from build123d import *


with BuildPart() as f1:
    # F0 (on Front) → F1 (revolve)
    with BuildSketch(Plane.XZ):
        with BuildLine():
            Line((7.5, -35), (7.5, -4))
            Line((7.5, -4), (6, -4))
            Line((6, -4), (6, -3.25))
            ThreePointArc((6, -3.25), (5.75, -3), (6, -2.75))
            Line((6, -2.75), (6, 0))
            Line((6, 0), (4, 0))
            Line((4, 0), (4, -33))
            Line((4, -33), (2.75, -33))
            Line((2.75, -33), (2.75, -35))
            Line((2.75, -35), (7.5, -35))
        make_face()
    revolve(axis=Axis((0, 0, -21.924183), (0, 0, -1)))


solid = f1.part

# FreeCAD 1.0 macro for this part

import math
import FreeCAD as App
import Part
import Sketcher
from FreeCAD import Vector
Q = App.Units.Quantity

doc = App.newDocument("Part")
params = doc.addObject("Spreadsheet::Sheet", "Params")
for row, (alias, value) in enumerate([
    ("sketch1_width", "2 mm"),
    ("sketch1_height", "31 mm"),
    ("sketch1_height2", "33 mm"),
    ("sketch1_radius", "0.25 mm"),
    ("sketch1_width2", "1.5 mm"),
    ("revolution_angle", "360 deg"),
], start=1):
    params.set(f"A{row}", alias)
    params.set(f"B{row}", "=" + value)
    params.setAlias(f"B{row}", alias)

body = doc.addObject("PartDesign::Body", "Body")

# Sketch on XZ plane
sketch1 = body.newObject("Sketcher::SketchObject", "Sketch")
sketch1.AttachmentSupport = (doc.getObject("XZ_Plane"), [""])
sketch1.MapMode = "FlatFace"
sketch1.addGeometry(Part.LineSegment(Vector(7.5, -35, 0), Vector(7.5, -4, 0)), False)
sketch1.addGeometry(Part.LineSegment(Vector(7.5, -4, 0), Vector(6, -4, 0)), False)
sketch1.addGeometry(Part.LineSegment(Vector(6, -4, 0), Vector(6, -3.25, 0)), False)
sketch1.addGeometry(Part.ArcOfCircle(Part.Circle(Vector(6, -3, 0), Vector(0, 0, 1), 0.25), math.radians(90), math.radians(270)), False)
sketch1.addGeometry(Part.LineSegment(Vector(6, -2.75, 0), Vector(6, 0, 0)), False)
sketch1.addGeometry(Part.LineSegment(Vector(6, 0, 0), Vector(4, 0, 0)), False)
sketch1.addGeometry(Part.LineSegment(Vector(4, 0, 0), Vector(4, -33, 0)), False)
sketch1.addGeometry(Part.LineSegment(Vector(4, -33, 0), Vector(2.75, -33, 0)), False)
sketch1.addGeometry(Part.LineSegment(Vector(2.75, -33, 0), Vector(2.75, -35, 0)), False)
sketch1.addGeometry(Part.LineSegment(Vector(2.75, -35, 0), Vector(7.5, -35, 0)), False)
sketch1.addConstraint(Sketcher.Constraint("Coincident", 0, 2, 1, 1))
sketch1.addConstraint(Sketcher.Constraint("Coincident", 1, 2, 2, 1))
sketch1.addConstraint(Sketcher.Constraint("Coincident", 2, 2, 3, 2))
sketch1.addConstraint(Sketcher.Constraint("Coincident", 3, 1, 4, 1))
sketch1.addConstraint(Sketcher.Constraint("Coincident", 4, 2, 5, 1))
sketch1.addConstraint(Sketcher.Constraint("Coincident", 5, 2, 6, 1))
sketch1.addConstraint(Sketcher.Constraint("Coincident", 6, 2, 7, 1))
sketch1.addConstraint(Sketcher.Constraint("Coincident", 7, 2, 8, 1))
sketch1.addConstraint(Sketcher.Constraint("Coincident", 8, 2, 9, 1))
sketch1.addConstraint(Sketcher.Constraint("Coincident", 9, 2, 0, 1))
sketch1.addConstraint(Sketcher.Constraint("Vertical", 0))
sketch1.addConstraint(Sketcher.Constraint("Horizontal", 1))
sketch1.addConstraint(Sketcher.Constraint("Vertical", 2))
sketch1.addConstraint(Sketcher.Constraint("Vertical", 4))
sketch1.addConstraint(Sketcher.Constraint("Horizontal", 5))
sketch1.addConstraint(Sketcher.Constraint("Vertical", 6))
sketch1.addConstraint(Sketcher.Constraint("Horizontal", 7))
sketch1.addConstraint(Sketcher.Constraint("Vertical", 8))
sketch1.addConstraint(Sketcher.Constraint("Horizontal", 9))
sketch1.addConstraint(Sketcher.Constraint("PointOnObject", 4, 2, -1))
sketch1.addConstraint(Sketcher.Constraint("Vertical", 3, 3, 1, 2))
sketch1.addConstraint(Sketcher.Constraint("Vertical", 2, 2, 3, 1))
sketch1.addConstraint(Sketcher.Constraint("Equal", 5, 8))
sketch1.addConstraint(Sketcher.Constraint("DistanceX", 5, 2, 5, 1, Q("2 mm")))
sketch1.addConstraint(Sketcher.Constraint("DistanceY", 0, 1, 0, 2, Q("31 mm")))
sketch1.addConstraint(Sketcher.Constraint("DistanceY", 6, 2, 6, 1, Q("33 mm")))
sketch1.addConstraint(Sketcher.Constraint("Radius", 3, Q("0.25 mm")))
sketch1.addConstraint(Sketcher.Constraint("DistanceX", 1, 2, 1, 1, Q("1.5 mm")))
sketch1.addConstraint(Sketcher.Constraint("DistanceX", -1, 1, 3, 3, Q("6 mm")))
sketch1.addConstraint(Sketcher.Constraint("DistanceY", 3, 3, -1, 1, Q("3 mm")))
sketch1.addConstraint(Sketcher.Constraint("DistanceX", 7, 2, 7, 1, Q("1.25 mm")))
sketch1.setExpression("Constraints[23]", "Params.sketch1_width")
sketch1.setExpression("Constraints[24]", "Params.sketch1_height")
sketch1.setExpression("Constraints[25]", "Params.sketch1_height2")
sketch1.setExpression("Constraints[26]", "Params.sketch1_radius")
sketch1.setExpression("Constraints[27]", "Params.sketch1_width2")
revolution = body.newObject("PartDesign::Revolution", "Revolution")
revolution.Profile = sketch1
revolution.ReferenceAxis = (sketch1, ["V_Axis"])
revolution.setExpression("Angle", "Params.revolution_angle")

doc.recompute()
